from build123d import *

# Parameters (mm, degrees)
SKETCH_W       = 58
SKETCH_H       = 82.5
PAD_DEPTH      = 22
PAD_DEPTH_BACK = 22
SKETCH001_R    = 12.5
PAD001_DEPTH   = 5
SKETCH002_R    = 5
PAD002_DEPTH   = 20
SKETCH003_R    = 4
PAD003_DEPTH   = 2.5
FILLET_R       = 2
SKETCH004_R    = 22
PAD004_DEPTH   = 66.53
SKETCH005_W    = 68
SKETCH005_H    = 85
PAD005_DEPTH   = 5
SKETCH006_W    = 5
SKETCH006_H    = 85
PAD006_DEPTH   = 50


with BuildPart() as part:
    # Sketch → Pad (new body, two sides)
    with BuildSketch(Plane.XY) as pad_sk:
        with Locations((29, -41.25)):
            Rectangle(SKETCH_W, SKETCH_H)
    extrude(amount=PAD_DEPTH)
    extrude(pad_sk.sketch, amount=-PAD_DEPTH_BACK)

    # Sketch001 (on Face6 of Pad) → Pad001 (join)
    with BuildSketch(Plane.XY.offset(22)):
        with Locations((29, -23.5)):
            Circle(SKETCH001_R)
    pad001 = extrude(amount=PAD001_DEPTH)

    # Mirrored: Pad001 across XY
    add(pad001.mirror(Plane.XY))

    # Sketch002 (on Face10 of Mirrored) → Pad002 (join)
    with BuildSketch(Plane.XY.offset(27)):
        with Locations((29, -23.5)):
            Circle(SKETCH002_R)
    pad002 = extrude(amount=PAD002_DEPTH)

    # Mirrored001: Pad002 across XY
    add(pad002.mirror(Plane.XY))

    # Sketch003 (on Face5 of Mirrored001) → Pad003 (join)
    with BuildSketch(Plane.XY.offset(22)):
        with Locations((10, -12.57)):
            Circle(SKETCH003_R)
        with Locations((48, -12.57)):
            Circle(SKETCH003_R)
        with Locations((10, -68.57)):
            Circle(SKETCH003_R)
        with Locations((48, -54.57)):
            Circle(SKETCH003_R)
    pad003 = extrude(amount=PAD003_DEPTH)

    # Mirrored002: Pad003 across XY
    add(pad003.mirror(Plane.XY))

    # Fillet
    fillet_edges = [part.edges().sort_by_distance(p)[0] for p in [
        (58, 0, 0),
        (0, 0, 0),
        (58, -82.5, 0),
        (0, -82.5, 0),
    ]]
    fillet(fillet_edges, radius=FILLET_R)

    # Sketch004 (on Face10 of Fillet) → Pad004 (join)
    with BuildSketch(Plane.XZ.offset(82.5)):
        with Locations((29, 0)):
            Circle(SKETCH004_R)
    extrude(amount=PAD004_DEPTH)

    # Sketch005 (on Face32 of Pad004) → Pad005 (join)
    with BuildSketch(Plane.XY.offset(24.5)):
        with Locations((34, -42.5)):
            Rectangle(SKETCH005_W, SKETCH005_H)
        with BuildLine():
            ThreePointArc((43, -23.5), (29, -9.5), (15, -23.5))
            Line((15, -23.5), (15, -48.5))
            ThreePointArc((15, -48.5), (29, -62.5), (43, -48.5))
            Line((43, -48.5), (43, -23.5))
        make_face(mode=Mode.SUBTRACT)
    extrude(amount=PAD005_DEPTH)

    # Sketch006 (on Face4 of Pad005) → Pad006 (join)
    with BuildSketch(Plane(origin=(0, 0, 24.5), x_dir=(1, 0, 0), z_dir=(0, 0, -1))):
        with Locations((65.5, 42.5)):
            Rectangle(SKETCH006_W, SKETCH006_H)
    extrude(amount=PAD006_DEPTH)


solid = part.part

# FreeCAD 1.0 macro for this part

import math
import FreeCAD as App
import Part
import Sketcher
from FreeCAD import Vector
Q = App.Units.Quantity


def edges_at(feature, points):
    """Names of the edges that pass closest to the given points."""
    edges = feature.Shape.Edges
    near = lambda p: min(range(len(edges)), key=lambda i: edges[i].distToShape(Part.Vertex(*p))[0])
    return sorted({f"Edge{near(p) + 1}" for p in points})

doc = App.newDocument("Part")
body = doc.addObject("PartDesign::Body", "Body")

# Sketch on XY plane
sketch1 = doc.addObject("Sketcher::SketchObject", "Sketch")
body.addObject(sketch1)
sketch1.AttachmentSupport = (doc.XY_Plane, [""])
sketch1.MapMode = "FlatFace"
sketch1.addGeometry([
    Part.LineSegment(Vector(0, 0, 0), Vector(0, -82, 0)),
    Part.LineSegment(Vector(0, -82, 0), Vector(58, -82, 0)),
    Part.LineSegment(Vector(58, -82, 0), Vector(58, 0, 0)),
    Part.LineSegment(Vector(58, 0, 0), Vector(0, 0, 0)),
], False)
sketch1.addConstraint([
    Sketcher.Constraint("Coincident", 0, 2, 1, 1),
    Sketcher.Constraint("Coincident", 1, 2, 2, 1),
    Sketcher.Constraint("Coincident", 2, 2, 3, 1),
    Sketcher.Constraint("Coincident", 3, 2, 0, 1),
    Sketcher.Constraint("Vertical", 0),
    Sketcher.Constraint("Horizontal", 1),
    Sketcher.Constraint("Vertical", 2),
    Sketcher.Constraint("Horizontal", 3),
    Sketcher.Constraint("Coincident", 3, 2, -1, 1),
    Sketcher.Constraint("DistanceX", 1, 1, 1, 2, Q("58 mm")),
    Sketcher.Constraint("DistanceY", 0, 2, 0, 1, Q("82.5 mm")),
])
pad1 = doc.addObject("PartDesign::Pad", "Pad")
body.addObject(pad1)
pad1.Profile = sketch1
pad1.Type = "TwoLengths"
pad1.Length = 22
pad1.Length2 = 22

# Sketch on XY plane
sketch2 = doc.addObject("Sketcher::SketchObject", "Sketch001")
body.addObject(sketch2)
sketch2.AttachmentSupport = (doc.XY_Plane, [""])
sketch2.MapMode = "FlatFace"
sketch2.AttachmentOffset = App.Placement(Vector(0, 0, 22), App.Rotation())
sketch2.addGeometry(Part.Circle(Vector(29, -24, 0), Vector(0, 0, 1), 12), False)
sketch2.addConstraint([
    Sketcher.Constraint("Diameter", 0, Q("25 mm")),
    Sketcher.Constraint("DistanceX", -1, 1, 0, 3, Q("29 mm")),
    Sketcher.Constraint("DistanceY", 0, 3, -1, 1, Q("23.5 mm")),
])
pad2 = doc.addObject("PartDesign::Pad", "Pad001")
body.addObject(pad2)
pad2.Profile = sketch2
pad2.Length = 5
doc.recompute()

mirrored = doc.addObject("PartDesign::Mirrored", "Mirrored")
body.addObject(mirrored)
mirrored.Originals = [pad2]
mirrored.MirrorPlane = (doc.XY_Plane, [""])
body.Tip = mirrored

# Sketch on XY plane
sketch3 = doc.addObject("Sketcher::SketchObject", "Sketch002")
body.addObject(sketch3)
sketch3.AttachmentSupport = (doc.XY_Plane, [""])
sketch3.MapMode = "FlatFace"
sketch3.AttachmentOffset = App.Placement(Vector(0, 0, 27), App.Rotation())
sketch3.addGeometry(Part.Circle(Vector(29, -24, 0), Vector(0, 0, 1), 5), False)
sketch3.addConstraint([
    Sketcher.Constraint("Diameter", 0, Q("10 mm")),
    Sketcher.Constraint("DistanceX", -1, 1, 0, 3, Q("29 mm")),
    Sketcher.Constraint("DistanceY", 0, 3, -1, 1, Q("23.5 mm")),
])
pad3 = doc.addObject("PartDesign::Pad", "Pad002")
body.addObject(pad3)
pad3.Profile = sketch3
pad3.Length = 20
doc.recompute()

mirrored2 = doc.addObject("PartDesign::Mirrored", "Mirrored001")
body.addObject(mirrored2)
mirrored2.Originals = [pad3]
mirrored2.MirrorPlane = (doc.XY_Plane, [""])
body.Tip = mirrored2

# Sketch on XY plane
sketch4 = doc.addObject("Sketcher::SketchObject", "Sketch003")
body.addObject(sketch4)
sketch4.AttachmentSupport = (doc.XY_Plane, [""])
sketch4.MapMode = "FlatFace"
sketch4.AttachmentOffset = App.Placement(Vector(0, 0, 22), App.Rotation())
sketch4.addGeometry([
    Part.Circle(Vector(10, -12.6, 0), Vector(0, 0, 1), 4),
    Part.Circle(Vector(48, -12.6, 0), Vector(0, 0, 1), 4),
    Part.Circle(Vector(10, -68.6, 0), Vector(0, 0, 1), 4),
    Part.Circle(Vector(48, -54.6, 0), Vector(0, 0, 1), 4),
], False)
sketch4.addConstraint([
    Sketcher.Constraint("Equal", 0, 1),
    Sketcher.Constraint("Equal", 1, 2),
    Sketcher.Constraint("Equal", 2, 3),
    Sketcher.Constraint("Horizontal", 0, 3, 1, 3),
    Sketcher.Constraint("Vertical", 0, 3, 2, 3),
    Sketcher.Constraint("Vertical", 1, 3, 3, 3),
    Sketcher.Constraint("Diameter", 0, Q("8 mm")),
    Sketcher.Constraint("DistanceX", -1, 1, 0, 3, Q("10 mm")),
    Sketcher.Constraint("DistanceX", -1, 1, 1, 3, Q("48 mm")),
    Sketcher.Constraint("DistanceY", 2, 3, 0, 3, Q("56 mm")),
    Sketcher.Constraint("DistanceY", 2, 3, 3, 3, Q("14 mm")),
    Sketcher.Constraint("DistanceY", 0, 3, -1, 1, Q("12.57 mm")),
])
pad4 = doc.addObject("PartDesign::Pad", "Pad003")
body.addObject(pad4)
pad4.Profile = sketch4
pad4.Length = 2.5
doc.recompute()

mirrored3 = doc.addObject("PartDesign::Mirrored", "Mirrored002")
body.addObject(mirrored3)
mirrored3.Originals = [pad4]
mirrored3.MirrorPlane = (doc.XY_Plane, [""])
body.Tip = mirrored3
doc.recompute()

fillet = doc.addObject("PartDesign::Fillet", "Fillet")
body.addObject(fillet)
fillet.Base = (mirrored3, edges_at(mirrored3, [
    (58, 0, 0),
    (0, 0, 0),
    (58, -82.5, 0),
    (0, -82.5, 0),
]))
fillet.Radius = 2

# Sketch on XZ plane
sketch5 = doc.addObject("Sketcher::SketchObject", "Sketch004")
body.addObject(sketch5)
sketch5.AttachmentSupport = (doc.XZ_Plane, [""])
sketch5.MapMode = "FlatFace"
sketch5.AttachmentOffset = App.Placement(Vector(0, 0, 82.5), App.Rotation())
sketch5.addGeometry(Part.Circle(Vector(29, 0, 0), Vector(0, 0, 1), 22), False)
sketch5.addConstraint([
    Sketcher.Constraint("PointOnObject", 0, 3, -1),
    Sketcher.Constraint("Diameter", 0, Q("44 mm")),
    Sketcher.Constraint("DistanceX", -1, 1, 0, 3, Q("29 mm")),
])
pad5 = doc.addObject("PartDesign::Pad", "Pad004")
body.addObject(pad5)
pad5.Profile = sketch5
pad5.Length = 66.53

# Sketch on XY plane
sketch6 = doc.addObject("Sketcher::SketchObject", "Sketch005")
body.addObject(sketch6)
sketch6.AttachmentSupport = (doc.XY_Plane, [""])
sketch6.MapMode = "FlatFace"
sketch6.AttachmentOffset = App.Placement(Vector(0, 0, 24.5), App.Rotation())
sketch6.addGeometry([
    Part.LineSegment(Vector(0, 0, 0), Vector(0, -85, 0)),  # 0
    Part.LineSegment(Vector(0, -85, 0), Vector(68, -85, 0)),  # 1
    Part.LineSegment(Vector(68, -85, 0), Vector(68, 0, 0)),  # 2
    Part.LineSegment(Vector(68, 0, 0), Vector(0, 0, 0)),  # 3
    Part.ArcOfCircle(Part.Circle(Vector(29, -24, 0), Vector(0, 0, 1), 14), math.radians(0), math.radians(180)),  # 4
    Part.LineSegment(Vector(43, -24, 0), Vector(43, -48, 0)),  # 5
    Part.ArcOfCircle(Part.Circle(Vector(29, -48, 0), Vector(0, 0, 1), 14), math.radians(180), math.radians(360)),  # 6
    Part.LineSegment(Vector(15, -48, 0), Vector(15, -24, 0)),  # 7
], False)
sketch6.addConstraint([
    Sketcher.Constraint("Coincident", 0, 2, 1, 1),
    Sketcher.Constraint("Coincident", 1, 2, 2, 1),
    Sketcher.Constraint("Coincident", 2, 2, 3, 1),
    Sketcher.Constraint("Coincident", 3, 2, 0, 1),
    Sketcher.Constraint("Tangent", 4, 1, 5, 1),
    Sketcher.Constraint("Tangent", 5, 2, 6, 2),
    Sketcher.Constraint("Tangent", 6, 1, 7, 1),
    Sketcher.Constraint("Tangent", 7, 2, 4, 2),
    Sketcher.Constraint("Vertical", 0),
    Sketcher.Constraint("Horizontal", 1),
    Sketcher.Constraint("Vertical", 2),
    Sketcher.Constraint("Horizontal", 3),
    Sketcher.Constraint("Vertical", 5),
    Sketcher.Constraint("Vertical", 7),
    Sketcher.Constraint("Coincident", 3, 2, -1, 1),
    Sketcher.Constraint("Radius", 4, Q("14 mm")),
    Sketcher.Constraint("DistanceX", 1, 1, 1, 2, Q("68 mm")),
    Sketcher.Constraint("DistanceY", 0, 2, 0, 1, Q("85 mm")),
    Sketcher.Constraint("DistanceY", 5, 2, 5, 1, Q("25 mm")),
    Sketcher.Constraint("DistanceX", -1, 1, 4, 3, Q("29 mm")),
    Sketcher.Constraint("DistanceY", 4, 3, -1, 1, Q("23.5 mm")),
])
pad6 = doc.addObject("PartDesign::Pad", "Pad005")
body.addObject(pad6)
pad6.Profile = sketch6
pad6.Length = 5

# Sketch on XY plane
sketch7 = doc.addObject("Sketcher::SketchObject", "Sketch006")
body.addObject(sketch7)
sketch7.AttachmentSupport = (doc.XY_Plane, [""])
sketch7.MapMode = "FlatFace"
sketch7.AttachmentOffset = App.Placement(Vector(0, 0, 24.5), App.Rotation())
sketch7.addGeometry([
    Part.LineSegment(Vector(63, -85, 0), Vector(63, 0, 0)),
    Part.LineSegment(Vector(63, 0, 0), Vector(68, 0, 0)),
    Part.LineSegment(Vector(68, 0, 0), Vector(68, -85, 0)),
    Part.LineSegment(Vector(68, -85, 0), Vector(63, -85, 0)),
], False)
sketch7.addConstraint([
    Sketcher.Constraint("Coincident", 0, 2, 1, 1),
    Sketcher.Constraint("Coincident", 1, 2, 2, 1),
    Sketcher.Constraint("Coincident", 2, 2, 3, 1),
    Sketcher.Constraint("Coincident", 3, 2, 0, 1),
    Sketcher.Constraint("Vertical", 0),
    Sketcher.Constraint("Horizontal", 1),
    Sketcher.Constraint("Vertical", 2),
    Sketcher.Constraint("Horizontal", 3),
    Sketcher.Constraint("PointOnObject", 0, 2, -1),
    Sketcher.Constraint("DistanceX", 1, 1, 1, 2, Q("5 mm")),
    Sketcher.Constraint("DistanceY", 0, 1, 0, 2, Q("85 mm")),
    Sketcher.Constraint("DistanceX", -1, 1, 0, 2, Q("63 mm")),
])
pad7 = doc.addObject("PartDesign::Pad", "Pad006")
body.addObject(pad7)
pad7.Profile = sketch7
pad7.Length = 50
pad7.Reversed = True

doc.recompute()
